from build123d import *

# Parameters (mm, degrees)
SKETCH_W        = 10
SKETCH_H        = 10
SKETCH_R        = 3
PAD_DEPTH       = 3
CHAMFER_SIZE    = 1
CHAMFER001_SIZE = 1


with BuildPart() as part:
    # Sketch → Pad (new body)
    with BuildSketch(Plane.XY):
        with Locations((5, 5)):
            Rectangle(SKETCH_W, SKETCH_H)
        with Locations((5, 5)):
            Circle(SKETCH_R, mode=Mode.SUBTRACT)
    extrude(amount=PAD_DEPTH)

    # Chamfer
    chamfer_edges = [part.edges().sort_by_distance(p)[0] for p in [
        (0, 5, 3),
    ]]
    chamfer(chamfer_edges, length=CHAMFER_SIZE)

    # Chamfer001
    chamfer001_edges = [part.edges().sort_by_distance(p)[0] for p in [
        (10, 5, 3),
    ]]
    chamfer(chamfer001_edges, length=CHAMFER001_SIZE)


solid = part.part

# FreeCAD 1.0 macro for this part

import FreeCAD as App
import Part
import Sketcher
Q = App.Units.Quantity


def edges_at(feature, points):
    """Names of the edges that pass closest to the given points."""
    edges = feature.Shape.Edges
    near = lambda p: min(range(len(edges)), key=lambda i: edges[i].distToShape(Part.Vertex(*p))[0])
    return sorted({f"Edge{near(p) + 1}" for p in points})


def add_polygon(sketch, points):
    """Adds a closed chain of lines whose ends are joined by coincident constraints."""
    first, n = sketch.GeometryCount, len(points)
    for a, b in zip(points, points[1:] + points[:1]):
        sketch.addGeometry(Part.LineSegment(App.Vector(*a, 0), App.Vector(*b, 0)), False)
    for i in range(n):
        sketch.addConstraint(Sketcher.Constraint("Coincident", first + i, 2, first + (i + 1) % n, 1))

doc = App.newDocument("Part")
body = doc.addObject("PartDesign::Body", "Body")

# Sketch on XY plane
sketch1 = body.newObject("Sketcher::SketchObject", "Sketch")
sketch1.AttachmentSupport = (doc.getObject("XY_Plane"), [""])
sketch1.MapMode = "FlatFace"
add_polygon(sketch1, [(0, 10), (0, 0), (10, 0), (10, 10)])  # lines 0-3
sketch1.addGeometry(Part.Circle(App.Vector(5, 5, 0), App.Vector(0, 0, 1), 3), False)  # 4
sketch1.addConstraint([
    Sketcher.Constraint("Vertical", 0),
    Sketcher.Constraint("Horizontal", 1),
    Sketcher.Constraint("Vertical", 2),
    Sketcher.Constraint("Horizontal", 3),
    Sketcher.Constraint("Coincident", 0, 2, -1, 1),
    Sketcher.Constraint("Equal", 3, 0),
    Sketcher.Constraint("Diameter", 4, Q("6 mm")),
    Sketcher.Constraint("DistanceX", 1, 1, 1, 2, Q("10 mm")),
    Sketcher.Constraint("DistanceX", -1, 1, 4, 3, Q("5 mm")),
    Sketcher.Constraint("DistanceY", -1, 1, 4, 3, Q("5 mm")),
])
pad1 = body.newObject("PartDesign::Pad", "Pad")
pad1.Profile = sketch1
pad1.Length = 3
doc.recompute()

chamfer = body.newObject("PartDesign::Chamfer", "Chamfer")
chamfer.Base = (pad1, edges_at(pad1, [(0, 5, 3)]))
chamfer.Size = 1
doc.recompute()

chamfer2 = body.newObject("PartDesign::Chamfer", "Chamfer001")
chamfer2.Base = (chamfer, edges_at(chamfer, [(10, 5, 3)]))
chamfer2.Size = 1

doc.recompute()
